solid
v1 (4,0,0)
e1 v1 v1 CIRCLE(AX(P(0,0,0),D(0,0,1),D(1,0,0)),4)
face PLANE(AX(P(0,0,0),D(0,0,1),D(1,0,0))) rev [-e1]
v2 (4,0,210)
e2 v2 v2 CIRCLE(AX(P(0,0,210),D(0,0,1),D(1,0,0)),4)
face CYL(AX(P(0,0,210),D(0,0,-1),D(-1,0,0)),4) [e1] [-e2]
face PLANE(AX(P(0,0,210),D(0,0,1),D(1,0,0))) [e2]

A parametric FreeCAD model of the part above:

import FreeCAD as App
import Part
import Sketcher
from FreeCAD import Vector
Q = App.Units.Quantity

doc = App.newDocument("Part")
body = doc.addObject("PartDesign::Body", "Body")

# Sketch on XY plane
sketch1 = body.newObject("Sketcher::SketchObject", "Sketch")
sketch1.AttachmentSupport = (doc.getObject("XY_Plane"), [""])
sketch1.MapMode = "FlatFace"
sketch1.addGeometry(Part.Circle(Vector(0, 0, 0), Vector(0, 0, 1), 4), False)
sketch1.addConstraint([
    Sketcher.Constraint("Coincident", 0, 3, -1, 1),
    Sketcher.Constraint("Diameter", 0, Q("8 mm")),
])
pad1 = body.newObject("PartDesign::Pad", "Pad")
pad1.Profile = sketch1
pad1.Length = 210

doc.recompute()
